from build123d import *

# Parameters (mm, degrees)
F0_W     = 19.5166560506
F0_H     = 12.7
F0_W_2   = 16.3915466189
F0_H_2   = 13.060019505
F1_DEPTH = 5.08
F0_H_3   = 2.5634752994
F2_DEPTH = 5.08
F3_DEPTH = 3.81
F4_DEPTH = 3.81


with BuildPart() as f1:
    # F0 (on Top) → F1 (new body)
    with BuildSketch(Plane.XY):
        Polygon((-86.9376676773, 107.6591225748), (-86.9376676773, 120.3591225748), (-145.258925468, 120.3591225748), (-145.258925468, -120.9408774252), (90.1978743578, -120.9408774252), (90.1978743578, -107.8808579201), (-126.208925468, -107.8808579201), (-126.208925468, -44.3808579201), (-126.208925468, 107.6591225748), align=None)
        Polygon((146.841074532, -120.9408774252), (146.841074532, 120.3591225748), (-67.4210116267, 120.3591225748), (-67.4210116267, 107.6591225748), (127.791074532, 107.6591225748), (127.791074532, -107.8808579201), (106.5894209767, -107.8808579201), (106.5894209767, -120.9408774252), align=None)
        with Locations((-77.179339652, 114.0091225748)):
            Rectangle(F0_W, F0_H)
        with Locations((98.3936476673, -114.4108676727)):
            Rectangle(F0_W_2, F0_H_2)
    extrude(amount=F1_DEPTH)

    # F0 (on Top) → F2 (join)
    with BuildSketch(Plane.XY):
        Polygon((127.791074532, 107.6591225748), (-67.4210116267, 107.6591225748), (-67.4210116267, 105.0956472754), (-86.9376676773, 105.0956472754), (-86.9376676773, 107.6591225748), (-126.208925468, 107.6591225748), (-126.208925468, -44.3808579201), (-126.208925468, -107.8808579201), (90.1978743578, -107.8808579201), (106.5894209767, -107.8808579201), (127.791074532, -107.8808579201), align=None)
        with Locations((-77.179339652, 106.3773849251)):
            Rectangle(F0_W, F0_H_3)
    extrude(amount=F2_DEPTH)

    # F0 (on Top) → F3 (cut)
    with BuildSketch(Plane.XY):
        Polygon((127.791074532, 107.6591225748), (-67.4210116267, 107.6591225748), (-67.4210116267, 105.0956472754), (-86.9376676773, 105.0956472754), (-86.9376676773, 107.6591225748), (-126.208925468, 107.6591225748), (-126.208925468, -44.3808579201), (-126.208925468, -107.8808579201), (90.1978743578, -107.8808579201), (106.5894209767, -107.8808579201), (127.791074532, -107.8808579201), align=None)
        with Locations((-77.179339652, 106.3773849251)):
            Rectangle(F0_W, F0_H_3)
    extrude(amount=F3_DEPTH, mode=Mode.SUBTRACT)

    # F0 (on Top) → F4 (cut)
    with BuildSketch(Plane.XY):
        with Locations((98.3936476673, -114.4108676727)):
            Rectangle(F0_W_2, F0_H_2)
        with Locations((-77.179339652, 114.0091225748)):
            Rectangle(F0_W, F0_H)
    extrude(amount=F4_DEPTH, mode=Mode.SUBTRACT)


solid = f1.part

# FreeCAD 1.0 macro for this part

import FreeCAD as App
import Part
import Sketcher
from FreeCAD import Vector
Q = App.Units.Quantity

doc = App.newDocument("Part")
body = doc.addObject("PartDesign::Body", "Body")

sketch1 = body.newObject("Sketcher::SketchObject", "Sketch")
sketch1.AttachmentSupport = (doc.getObject("XY_Plane"), [""])
sketch1.MapMode = "FlatFace"
sketch1.addGeometry([
    Part.LineSegment(Vector(-145.258925, 120.359123, 0), Vector(-145.258925, -120.940877, 0)),
    Part.LineSegment(Vector(-145.258925, -120.940877, 0), Vector(146.841075, -120.940877, 0)),
    Part.LineSegment(Vector(146.841075, -120.940877, 0), Vector(146.841075, 120.359123, 0)),
    Part.LineSegment(Vector(146.841075, 120.359123, 0), Vector(-145.258925, 120.359123, 0)),
    Part.LineSegment(Vector(-126.208925, -107.880858, 0), Vector(-126.208925, 107.659123, 0)),
    Part.LineSegment(Vector(-126.208925, 107.659123, 0), Vector(127.791075, 107.659123, 0)),
    Part.LineSegment(Vector(127.791075, 107.659123, 0), Vector(127.791075, -107.880858, 0)),
    Part.LineSegment(Vector(127.791075, -107.880858, 0), Vector(106.589421, -107.880858, 0)),
    Part.LineSegment(Vector(106.589421, -107.880858, 0), Vector(-126.208925, -107.880858, 0)),
], False)
sketch1.addConstraint([
    Sketcher.Constraint("Coincident", 0, 2, 1, 1),
    Sketcher.Constraint("Coincident", 1, 2, 2, 1),
    Sketcher.Constraint("Coincident", 2, 2, 3, 1),
    Sketcher.Constraint("Coincident", 3, 2, 0, 1),
    Sketcher.Constraint("Coincident", 4, 2, 5, 1),
    Sketcher.Constraint("Coincident", 5, 2, 6, 1),
    Sketcher.Constraint("Coincident", 6, 2, 7, 1),
    Sketcher.Constraint("Coincident", 7, 2, 8, 1),
    Sketcher.Constraint("Coincident", 8, 2, 4, 1),
    Sketcher.Constraint("Vertical", 0),
    Sketcher.Constraint("Horizontal", 1),
    Sketcher.Constraint("Vertical", 2),
    Sketcher.Constraint("Horizontal", 3),
    Sketcher.Constraint("Vertical", 4),
    Sketcher.Constraint("Horizontal", 5),
    Sketcher.Constraint("Vertical", 6),
    Sketcher.Constraint("Horizontal", 7),
    Sketcher.Constraint("Horizontal", 8),
    Sketcher.Constraint("DistanceX", 5, 1, 5, 2, Q("10 in")),
    Sketcher.Constraint("DistanceX", 1, 1, 1, 2, Q("11.5 in")),
    Sketcher.Constraint("DistanceY", 0, 2, 0, 1, Q("9.5 in")),
    Sketcher.Constraint("DistanceY", 0, 2, 4, 2, Q("9 in")),
    Sketcher.Constraint("DistanceX", 3, 2, 4, 2, Q("0.75 in")),
    Sketcher.Constraint("DistanceY", 4, 1, 4, 2, 215.53998),
    Sketcher.Constraint("DistanceX", 7, 2, 7, 1, 21.201654),
    Sketcher.Constraint("DistanceX", -1, 1, 7, 2, 106.589421),
    Sketcher.Constraint("DistanceY", 0, 2, -1, 1, 120.940877),
])
pad1 = body.newObject("PartDesign::Pad", "Pad")
pad1.Profile = sketch1
pad1.Length = Q("0.2 in")

sketch2 = body.newObject("Sketcher::SketchObject", "Sketch001")
sketch2.AttachmentSupport = (doc.getObject("XY_Plane"), [""])
sketch2.MapMode = "FlatFace"
sketch2.addGeometry([
    Part.LineSegment(Vector(127.791075, 107.659123, 0), Vector(-126.208925, 107.659123, 0)),
    Part.LineSegment(Vector(-126.208925, 107.659123, 0), Vector(-126.208925, -107.880858, 0)),
    Part.LineSegment(Vector(-126.208925, -107.880858, 0), Vector(127.791075, -107.880858, 0)),
    Part.LineSegment(Vector(127.791075, -107.880858, 0), Vector(127.791075, 107.659123, 0)),
], False)
sketch2.addConstraint([
    Sketcher.Constraint("Coincident", 0, 2, 1, 1),
    Sketcher.Constraint("Coincident", 1, 2, 2, 1),
    Sketcher.Constraint("Coincident", 2, 2, 3, 1),
    Sketcher.Constraint("Coincident", 3, 2, 0, 1),
    Sketcher.Constraint("Horizontal", 0),
    Sketcher.Constraint("Vertical", 1),
    Sketcher.Constraint("Horizontal", 2),
    Sketcher.Constraint("Vertical", 3),
    Sketcher.Constraint("DistanceX", 0, 2, 0, 1, Q("10 in")),
    Sketcher.Constraint("DistanceY", 1, 2, 1, 1, 215.53998),
    Sketcher.Constraint("DistanceX", 0, 2, -1, 1, 126.208925),
    Sketcher.Constraint("DistanceY", -1, 1, 0, 2, 107.659123),
])
pad2 = body.newObject("PartDesign::Pad", "Pad001")
pad2.Profile = sketch2
pad2.Length = Q("0.2 in")

sketch3 = body.newObject("Sketcher::SketchObject", "Sketch002")
sketch3.AttachmentSupport = (doc.getObject("XY_Plane"), [""])
sketch3.MapMode = "FlatFace"
sketch3.addGeometry([
    Part.LineSegment(Vector(127.791075, 107.659123, 0), Vector(-126.208925, 107.659123, 0)),
    Part.LineSegment(Vector(-126.208925, 107.659123, 0), Vector(-126.208925, -107.880858, 0)),
    Part.LineSegment(Vector(-126.208925, -107.880858, 0), Vector(127.791075, -107.880858, 0)),
    Part.LineSegment(Vector(127.791075, -107.880858, 0), Vector(127.791075, 107.659123, 0)),
], False)
sketch3.addConstraint([
    Sketcher.Constraint("Coincident", 0, 2, 1, 1),
    Sketcher.Constraint("Coincident", 1, 2, 2, 1),
    Sketcher.Constraint("Coincident", 2, 2, 3, 1),
    Sketcher.Constraint("Coincident", 3, 2, 0, 1),
    Sketcher.Constraint("Horizontal", 0),
    Sketcher.Constraint("Vertical", 1),
    Sketcher.Constraint("Horizontal", 2),
    Sketcher.Constraint("Vertical", 3),
    Sketcher.Constraint("DistanceX", 0, 2, 0, 1, Q("10 in")),
    Sketcher.Constraint("DistanceY", 1, 2, 1, 1, 215.53998),
    Sketcher.Constraint("DistanceX", 0, 2, -1, 1, 126.208925),
    Sketcher.Constraint("DistanceY", -1, 1, 0, 2, 107.659123),
])
pocket1 = body.newObject("PartDesign::Pocket", "Pocket")
pocket1.Profile = sketch3
pocket1.Length = Q("0.15 in")
pocket1.Reversed = True

sketch4 = body.newObject("Sketcher::SketchObject", "Sketch003")
sketch4.AttachmentSupport = (doc.getObject("XY_Plane"), [""])
sketch4.MapMode = "FlatFace"
sketch4.addGeometry([
    Part.LineSegment(Vector(90.197874, -107.880858, 0), Vector(90.197874, -120.940877, 0)),
    Part.LineSegment(Vector(90.197874, -120.940877, 0), Vector(106.589421, -120.940877, 0)),
    Part.LineSegment(Vector(106.589421, -120.940877, 0), Vector(106.589421, -107.880858, 0)),
    Part.LineSegment(Vector(106.589421, -107.880858, 0), Vector(90.197874, -107.880858, 0)),
    Part.LineSegment(Vector(-86.937668, 120.359123, 0), Vector(-86.937668, 107.659123, 0)),
    Part.LineSegment(Vector(-86.937668, 107.659123, 0), Vector(-67.421012, 107.659123, 0)),
    Part.LineSegment(Vector(-67.421012, 107.659123, 0), Vector(-67.421012, 120.359123, 0)),
    Part.LineSegment(Vector(-67.421012, 120.359123, 0), Vector(-86.937668, 120.359123, 0)),
], False)
sketch4.addConstraint([
    Sketcher.Constraint("Coincident", 0, 2, 1, 1),
    Sketcher.Constraint("Coincident", 1, 2, 2, 1),
    Sketcher.Constraint("Coincident", 2, 2, 3, 1),
    Sketcher.Constraint("Coincident", 3, 2, 0, 1),
    Sketcher.Constraint("Coincident", 4, 2, 5, 1),
    Sketcher.Constraint("Coincident", 5, 2, 6, 1),
    Sketcher.Constraint("Coincident", 6, 2, 7, 1),
    Sketcher.Constraint("Coincident", 7, 2, 4, 1),
    Sketcher.Constraint("Vertical", 0),
    Sketcher.Constraint("Horizontal", 1),
    Sketcher.Constraint("Vertical", 2),
    Sketcher.Constraint("Horizontal", 3),
    Sketcher.Constraint("Vertical", 4),
    Sketcher.Constraint("Horizontal", 5),
    Sketcher.Constraint("Vertical", 6),
    Sketcher.Constraint("Horizontal", 7),
    Sketcher.Constraint("DistanceY", 4, 2, 4, 1, Q("0.5 in")),
    Sketcher.Constraint("DistanceY", 0, 2, 4, 2, Q("9 in")),
    Sketcher.Constraint("DistanceY", 0, 2, 0, 1, 13.06002),
    Sketcher.Constraint("DistanceX", 1, 1, 1, 2, 16.391547),
    Sketcher.Constraint("DistanceX", 5, 1, 5, 2, 19.516656),
    Sketcher.Constraint("DistanceX", -1, 1, 1, 2, 106.589421),
    Sketcher.Constraint("DistanceX", 5, 2, -1, 1, 67.421012),
    Sketcher.Constraint("DistanceY", 0, 2, -1, 1, 120.940877),
])
pocket2 = body.newObject("PartDesign::Pocket", "Pocket001")
pocket2.Profile = sketch4
pocket2.Length = Q("0.15 in")
pocket2.Reversed = True

doc.recompute()
